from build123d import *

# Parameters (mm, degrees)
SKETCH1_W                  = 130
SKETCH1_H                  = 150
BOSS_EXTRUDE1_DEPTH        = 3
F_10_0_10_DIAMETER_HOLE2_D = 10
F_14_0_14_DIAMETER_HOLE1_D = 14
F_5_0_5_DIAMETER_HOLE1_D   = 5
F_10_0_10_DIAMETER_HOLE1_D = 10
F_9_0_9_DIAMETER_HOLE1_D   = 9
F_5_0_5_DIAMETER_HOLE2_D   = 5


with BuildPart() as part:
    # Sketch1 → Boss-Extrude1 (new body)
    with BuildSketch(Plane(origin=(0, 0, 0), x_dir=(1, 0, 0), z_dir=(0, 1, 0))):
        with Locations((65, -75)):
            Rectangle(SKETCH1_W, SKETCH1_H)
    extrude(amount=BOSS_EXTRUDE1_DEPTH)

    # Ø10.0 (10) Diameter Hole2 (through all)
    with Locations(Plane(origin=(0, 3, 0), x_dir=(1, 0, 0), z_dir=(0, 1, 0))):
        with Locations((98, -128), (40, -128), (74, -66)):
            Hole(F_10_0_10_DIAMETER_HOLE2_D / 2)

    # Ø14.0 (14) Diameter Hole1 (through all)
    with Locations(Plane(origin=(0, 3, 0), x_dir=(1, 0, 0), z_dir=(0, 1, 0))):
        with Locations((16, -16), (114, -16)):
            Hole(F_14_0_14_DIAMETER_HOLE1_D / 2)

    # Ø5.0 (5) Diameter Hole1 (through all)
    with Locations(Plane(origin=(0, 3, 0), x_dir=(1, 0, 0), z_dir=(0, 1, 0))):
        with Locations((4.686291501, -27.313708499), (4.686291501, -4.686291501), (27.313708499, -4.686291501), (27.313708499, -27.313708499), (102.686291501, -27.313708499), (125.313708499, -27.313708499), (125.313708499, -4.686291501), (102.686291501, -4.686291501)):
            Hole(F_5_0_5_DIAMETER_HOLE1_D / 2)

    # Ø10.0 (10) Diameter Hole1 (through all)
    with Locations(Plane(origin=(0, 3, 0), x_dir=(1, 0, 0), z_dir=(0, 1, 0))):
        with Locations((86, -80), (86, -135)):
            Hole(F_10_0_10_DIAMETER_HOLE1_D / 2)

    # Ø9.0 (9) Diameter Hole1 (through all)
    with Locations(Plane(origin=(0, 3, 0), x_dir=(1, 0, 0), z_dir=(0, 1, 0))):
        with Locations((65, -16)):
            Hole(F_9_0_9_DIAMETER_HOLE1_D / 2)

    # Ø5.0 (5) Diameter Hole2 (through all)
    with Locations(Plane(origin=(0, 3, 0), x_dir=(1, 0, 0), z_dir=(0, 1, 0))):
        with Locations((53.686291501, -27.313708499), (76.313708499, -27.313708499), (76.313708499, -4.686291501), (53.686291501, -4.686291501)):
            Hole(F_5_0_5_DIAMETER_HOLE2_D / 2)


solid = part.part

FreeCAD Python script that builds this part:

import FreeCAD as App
import Part
import Sketcher
from FreeCAD import Vector


def add_polygon(sketch, points):
    """Adds a closed chain of lines whose ends are joined by coincident constraints."""
    first, n = sketch.GeometryCount, len(points)
    for a, b in zip(points, points[1:] + points[:1]):
        sketch.addGeometry(Part.LineSegment(App.Vector(*a, 0), App.Vector(*b, 0)), False)
    for i in range(n):
        sketch.addConstraint(Sketcher.Constraint("Coincident", first + i, 2, first + (i + 1) % n, 1))

doc = App.newDocument("Part")
body = doc.addObject("PartDesign::Body", "Body")

sketch1 = body.newObject("Sketcher::SketchObject", "Sketch")
sketch1.AttachmentSupport = (doc.getObject("XZ_Plane"), [""])
sketch1.MapMode = "FlatFace"
add_polygon(sketch1, [(0, 0), (0, 150), (130, 150), (130, 0)])
sketch1.addConstraint([
    Sketcher.Constraint("Vertical", 0),
    Sketcher.Constraint("Horizontal", 1),
    Sketcher.Constraint("Vertical", 2),
    Sketcher.Constraint("Horizontal", 3),
    Sketcher.Constraint("Coincident", 3, 2, -1, 1),
    Sketcher.Constraint("DistanceX", 1, 1, 1, 2, 130.0),
    Sketcher.Constraint("DistanceY", 0, 1, 0, 2, 150.0),
])
pad1 = body.newObject("PartDesign::Pad", "Pad")
pad1.Profile = sketch1
pad1.Length = 3
pad1.Reversed = True

sketch2 = body.newObject("Sketcher::SketchObject", "Sketch001")
sketch2.AttachmentSupport = (doc.getObject("XZ_Plane"), [""])
sketch2.MapMode = "FlatFace"
sketch2.AttachmentOffset = App.Placement(Vector(0, 0, -3), App.Rotation())
sketch2.addGeometry([
    Part.Circle(Vector(98, 128, 0), Vector(0, 0, 1), 5),
    Part.Circle(Vector(40, 128, 0), Vector(0, 0, 1), 5),
    Part.Circle(Vector(74, 66, 0), Vector(0, 0, 1), 5),
], False)
sketch2.addConstraint([
    Sketcher.Constraint("Equal", 0, 1),
    Sketcher.Constraint("Equal", 1, 2),
    Sketcher.Constraint("Horizontal", 0, 3, 1, 3),
    Sketcher.Constraint("Diameter", 0, 10.0),
    Sketcher.Constraint("DistanceX", -1, 1, 0, 3, 98.0),
    Sketcher.Constraint("DistanceY", -1, 1, 0, 3, 128.0),
    Sketcher.Constraint("DistanceX", -1, 1, 1, 3, 40.0),
    Sketcher.Constraint("DistanceX", -1, 1, 2, 3, 74.0),
    Sketcher.Constraint("DistanceY", -1, 1, 2, 3, 66.0),
])
doc.recompute()
hole = body.newObject("PartDesign::Hole", "Hole")
hole.Profile = sketch2
hole.ThreadType = "None"
hole.Diameter = 10
hole.DepthType = "ThroughAll"
hole.Reversed = True

sketch3 = body.newObject("Sketcher::SketchObject", "Sketch002")
sketch3.AttachmentSupport = (doc.getObject("XZ_Plane"), [""])
sketch3.MapMode = "FlatFace"
sketch3.AttachmentOffset = App.Placement(Vector(0, 0, -3), App.Rotation())
sketch3.addGeometry([
    Part.Circle(Vector(16, 16, 0), Vector(0, 0, 1), 7),
    Part.Circle(Vector(114, 16, 0), Vector(0, 0, 1), 7),
], False)
sketch3.addConstraint([
    Sketcher.Constraint("Equal", 0, 1),
    Sketcher.Constraint("Horizontal", 0, 3, 1, 3),
    Sketcher.Constraint("Diameter", 0, 14.0),
    Sketcher.Constraint("DistanceX", -1, 1, 0, 3, 16.0),
    Sketcher.Constraint("DistanceY", -1, 1, 0, 3, 16.0),
    Sketcher.Constraint("DistanceX", -1, 1, 1, 3, 114.0),
])
doc.recompute()
hole2 = body.newObject("PartDesign::Hole", "Hole001")
hole2.Profile = sketch3
hole2.ThreadType = "None"
hole2.Diameter = 14
hole2.DepthType = "ThroughAll"
hole2.Reversed = True

sketch4 = body.newObject("Sketcher::SketchObject", "Sketch003")
sketch4.AttachmentSupport = (doc.getObject("XZ_Plane"), [""])
sketch4.MapMode = "FlatFace"
sketch4.AttachmentOffset = App.Placement(Vector(0, 0, -3), App.Rotation())
sketch4.addGeometry([
    Part.Circle(Vector(4.7, 27.3, 0), Vector(0, 0, 1), 2.5),
    Part.Circle(Vector(4.7, 4.7, 0), Vector(0, 0, 1), 2.5),
    Part.Circle(Vector(27.3, 4.7, 0), Vector(0, 0, 1), 2.5),
    Part.Circle(Vector(27.3, 27.3, 0), Vector(0, 0, 1), 2.5),
    Part.Circle(Vector(102.7, 27.3, 0), Vector(0, 0, 1), 2.5),
    Part.Circle(Vector(125.3, 27.3, 0), Vector(0, 0, 1), 2.5),
    Part.Circle(Vector(125.3, 4.7, 0), Vector(0, 0, 1), 2.5),
    Part.Circle(Vector(102.7, 4.7, 0), Vector(0, 0, 1), 2.5),
], False)
sketch4.addConstraint([
    Sketcher.Constraint("Equal", 0, 1),
    Sketcher.Constraint("Equal", 1, 2),
    Sketcher.Constraint("Equal", 2, 3),
    Sketcher.Constraint("Equal", 3, 4),
    Sketcher.Constraint("Equal", 4, 5),
    Sketcher.Constraint("Equal", 5, 6),
    Sketcher.Constraint("Equal", 6, 7),
    Sketcher.Constraint("Horizontal", 1, 3, 2, 3),
    Sketcher.Constraint("Horizontal", 0, 3, 3, 3),
    Sketcher.Constraint("Horizontal", 3, 3, 4, 3),
    Sketcher.Constraint("Horizontal", 4, 3, 5, 3),
    Sketcher.Constraint("Horizontal", 2, 3, 6, 3),
    Sketcher.Constraint("Horizontal", 6, 3, 7, 3),
    Sketcher.Constraint("Vertical", 0, 3, 1, 3),
    Sketcher.Constraint("Vertical", 2, 3, 3, 3),
    Sketcher.Constraint("Vertical", 5, 3, 6, 3),
    Sketcher.Constraint("Vertical", 4, 3, 7, 3),
    Sketcher.Constraint("Diameter", 0, 5.0),
    Sketcher.Constraint("DistanceX", 0, 3, 4, 3, 98.0),
    Sketcher.Constraint("DistanceX", 3, 3, 5, 3, 98.0),
    Sketcher.Constraint("DistanceX", -1, 1, 0, 3, 4.686292),
    Sketcher.Constraint("DistanceY", -1, 1, 0, 3, 27.313708),
    Sketcher.Constraint("DistanceY", -1, 1, 1, 3, 4.686292),
    Sketcher.Constraint("DistanceX", -1, 1, 2, 3, 27.313708),
])
doc.recompute()
hole3 = body.newObject("PartDesign::Hole", "Hole002")
hole3.Profile = sketch4
hole3.ThreadType = "None"
hole3.Diameter = 5
hole3.DepthType = "ThroughAll"
hole3.Reversed = True

sketch5 = body.newObject("Sketcher::SketchObject", "Sketch004")
sketch5.AttachmentSupport = (doc.getObject("XZ_Plane"), [""])
sketch5.MapMode = "FlatFace"
sketch5.AttachmentOffset = App.Placement(Vector(0, 0, -3), App.Rotation())
sketch5.addGeometry([
    Part.Circle(Vector(86, 80, 0), Vector(0, 0, 1), 5),
    Part.Circle(Vector(86, 135, 0), Vector(0, 0, 1), 5),
], False)
sketch5.addConstraint([
    Sketcher.Constraint("Equal", 0, 1),
    Sketcher.Constraint("Vertical", 0, 3, 1, 3),
    Sketcher.Constraint("Diameter", 0, 10.0),
    Sketcher.Constraint("DistanceX", -1, 1, 0, 3, 86.0),
    Sketcher.Constraint("DistanceY", -1, 1, 0, 3, 80.0),
    Sketcher.Constraint("DistanceY", -1, 1, 1, 3, 135.0),
])
doc.recompute()
hole4 = body.newObject("PartDesign::Hole", "Hole003")
hole4.Profile = sketch5
hole4.ThreadType = "None"
hole4.Diameter = 10
hole4.DepthType = "ThroughAll"
hole4.Reversed = True

sketch6 = body.newObject("Sketcher::SketchObject", "Sketch005")
sketch6.AttachmentSupport = (doc.getObject("XZ_Plane"), [""])
sketch6.MapMode = "FlatFace"
sketch6.AttachmentOffset = App.Placement(Vector(0, 0, -3), App.Rotation())
sketch6.addGeometry(Part.Circle(Vector(65, 16, 0), Vector(0, 0, 1), 4.5), False)
sketch6.addConstraint([
    Sketcher.Constraint("Diameter", 0, 9.0),
    Sketcher.Constraint("DistanceX", -1, 1, 0, 3, 65.0),
    Sketcher.Constraint("DistanceY", -1, 1, 0, 3, 16.0),
])
doc.recompute()
hole5 = body.newObject("PartDesign::Hole", "Hole004")
hole5.Profile = sketch6
hole5.ThreadType = "None"
hole5.Diameter = 9
hole5.DepthType = "ThroughAll"
hole5.Reversed = True

sketch7 = body.newObject("Sketcher::SketchObject", "Sketch006")
sketch7.AttachmentSupport = (doc.getObject("XZ_Plane"), [""])
sketch7.MapMode = "FlatFace"
sketch7.AttachmentOffset = App.Placement(Vector(0, 0, -3), App.Rotation())
sketch7.addGeometry([
    Part.Circle(Vector(53.7, 27.3, 0), Vector(0, 0, 1), 2.5),
    Part.Circle(Vector(76.3, 27.3, 0), Vector(0, 0, 1), 2.5),
    Part.Circle(Vector(76.3, 4.7, 0), Vector(0, 0, 1), 2.5),
    Part.Circle(Vector(53.7, 4.7, 0), Vector(0, 0, 1), 2.5),
], False)
sketch7.addConstraint([
    Sketcher.Constraint("Equal", 0, 1),
    Sketcher.Constraint("Equal", 1, 2),
    Sketcher.Constraint("Equal", 2, 3),
    Sketcher.Constraint("Horizontal", 0, 3, 1, 3),
    Sketcher.Constraint("Horizontal", 2, 3, 3, 3),
    Sketcher.Constraint("Vertical", 1, 3, 2, 3),
    Sketcher.Constraint("Vertical", 0, 3, 3, 3),
    Sketcher.Constraint("Diameter", 0, 5.0),
    Sketcher.Constraint("DistanceX", -1, 1, 0, 3, 53.686292),
    Sketcher.Constraint("DistanceY", -1, 1, 0, 3, 27.313708),
    Sketcher.Constraint("DistanceX", -1, 1, 1, 3, 76.313708),
    Sketcher.Constraint("DistanceY", -1, 1, 2, 3, 4.686292),
])
doc.recompute()
hole6 = body.newObject("PartDesign::Hole", "Hole005")
hole6.Profile = sketch7
hole6.ThreadType = "None"
hole6.Diameter = 5
hole6.DepthType = "ThroughAll"
hole6.Reversed = True

doc.recompute()
